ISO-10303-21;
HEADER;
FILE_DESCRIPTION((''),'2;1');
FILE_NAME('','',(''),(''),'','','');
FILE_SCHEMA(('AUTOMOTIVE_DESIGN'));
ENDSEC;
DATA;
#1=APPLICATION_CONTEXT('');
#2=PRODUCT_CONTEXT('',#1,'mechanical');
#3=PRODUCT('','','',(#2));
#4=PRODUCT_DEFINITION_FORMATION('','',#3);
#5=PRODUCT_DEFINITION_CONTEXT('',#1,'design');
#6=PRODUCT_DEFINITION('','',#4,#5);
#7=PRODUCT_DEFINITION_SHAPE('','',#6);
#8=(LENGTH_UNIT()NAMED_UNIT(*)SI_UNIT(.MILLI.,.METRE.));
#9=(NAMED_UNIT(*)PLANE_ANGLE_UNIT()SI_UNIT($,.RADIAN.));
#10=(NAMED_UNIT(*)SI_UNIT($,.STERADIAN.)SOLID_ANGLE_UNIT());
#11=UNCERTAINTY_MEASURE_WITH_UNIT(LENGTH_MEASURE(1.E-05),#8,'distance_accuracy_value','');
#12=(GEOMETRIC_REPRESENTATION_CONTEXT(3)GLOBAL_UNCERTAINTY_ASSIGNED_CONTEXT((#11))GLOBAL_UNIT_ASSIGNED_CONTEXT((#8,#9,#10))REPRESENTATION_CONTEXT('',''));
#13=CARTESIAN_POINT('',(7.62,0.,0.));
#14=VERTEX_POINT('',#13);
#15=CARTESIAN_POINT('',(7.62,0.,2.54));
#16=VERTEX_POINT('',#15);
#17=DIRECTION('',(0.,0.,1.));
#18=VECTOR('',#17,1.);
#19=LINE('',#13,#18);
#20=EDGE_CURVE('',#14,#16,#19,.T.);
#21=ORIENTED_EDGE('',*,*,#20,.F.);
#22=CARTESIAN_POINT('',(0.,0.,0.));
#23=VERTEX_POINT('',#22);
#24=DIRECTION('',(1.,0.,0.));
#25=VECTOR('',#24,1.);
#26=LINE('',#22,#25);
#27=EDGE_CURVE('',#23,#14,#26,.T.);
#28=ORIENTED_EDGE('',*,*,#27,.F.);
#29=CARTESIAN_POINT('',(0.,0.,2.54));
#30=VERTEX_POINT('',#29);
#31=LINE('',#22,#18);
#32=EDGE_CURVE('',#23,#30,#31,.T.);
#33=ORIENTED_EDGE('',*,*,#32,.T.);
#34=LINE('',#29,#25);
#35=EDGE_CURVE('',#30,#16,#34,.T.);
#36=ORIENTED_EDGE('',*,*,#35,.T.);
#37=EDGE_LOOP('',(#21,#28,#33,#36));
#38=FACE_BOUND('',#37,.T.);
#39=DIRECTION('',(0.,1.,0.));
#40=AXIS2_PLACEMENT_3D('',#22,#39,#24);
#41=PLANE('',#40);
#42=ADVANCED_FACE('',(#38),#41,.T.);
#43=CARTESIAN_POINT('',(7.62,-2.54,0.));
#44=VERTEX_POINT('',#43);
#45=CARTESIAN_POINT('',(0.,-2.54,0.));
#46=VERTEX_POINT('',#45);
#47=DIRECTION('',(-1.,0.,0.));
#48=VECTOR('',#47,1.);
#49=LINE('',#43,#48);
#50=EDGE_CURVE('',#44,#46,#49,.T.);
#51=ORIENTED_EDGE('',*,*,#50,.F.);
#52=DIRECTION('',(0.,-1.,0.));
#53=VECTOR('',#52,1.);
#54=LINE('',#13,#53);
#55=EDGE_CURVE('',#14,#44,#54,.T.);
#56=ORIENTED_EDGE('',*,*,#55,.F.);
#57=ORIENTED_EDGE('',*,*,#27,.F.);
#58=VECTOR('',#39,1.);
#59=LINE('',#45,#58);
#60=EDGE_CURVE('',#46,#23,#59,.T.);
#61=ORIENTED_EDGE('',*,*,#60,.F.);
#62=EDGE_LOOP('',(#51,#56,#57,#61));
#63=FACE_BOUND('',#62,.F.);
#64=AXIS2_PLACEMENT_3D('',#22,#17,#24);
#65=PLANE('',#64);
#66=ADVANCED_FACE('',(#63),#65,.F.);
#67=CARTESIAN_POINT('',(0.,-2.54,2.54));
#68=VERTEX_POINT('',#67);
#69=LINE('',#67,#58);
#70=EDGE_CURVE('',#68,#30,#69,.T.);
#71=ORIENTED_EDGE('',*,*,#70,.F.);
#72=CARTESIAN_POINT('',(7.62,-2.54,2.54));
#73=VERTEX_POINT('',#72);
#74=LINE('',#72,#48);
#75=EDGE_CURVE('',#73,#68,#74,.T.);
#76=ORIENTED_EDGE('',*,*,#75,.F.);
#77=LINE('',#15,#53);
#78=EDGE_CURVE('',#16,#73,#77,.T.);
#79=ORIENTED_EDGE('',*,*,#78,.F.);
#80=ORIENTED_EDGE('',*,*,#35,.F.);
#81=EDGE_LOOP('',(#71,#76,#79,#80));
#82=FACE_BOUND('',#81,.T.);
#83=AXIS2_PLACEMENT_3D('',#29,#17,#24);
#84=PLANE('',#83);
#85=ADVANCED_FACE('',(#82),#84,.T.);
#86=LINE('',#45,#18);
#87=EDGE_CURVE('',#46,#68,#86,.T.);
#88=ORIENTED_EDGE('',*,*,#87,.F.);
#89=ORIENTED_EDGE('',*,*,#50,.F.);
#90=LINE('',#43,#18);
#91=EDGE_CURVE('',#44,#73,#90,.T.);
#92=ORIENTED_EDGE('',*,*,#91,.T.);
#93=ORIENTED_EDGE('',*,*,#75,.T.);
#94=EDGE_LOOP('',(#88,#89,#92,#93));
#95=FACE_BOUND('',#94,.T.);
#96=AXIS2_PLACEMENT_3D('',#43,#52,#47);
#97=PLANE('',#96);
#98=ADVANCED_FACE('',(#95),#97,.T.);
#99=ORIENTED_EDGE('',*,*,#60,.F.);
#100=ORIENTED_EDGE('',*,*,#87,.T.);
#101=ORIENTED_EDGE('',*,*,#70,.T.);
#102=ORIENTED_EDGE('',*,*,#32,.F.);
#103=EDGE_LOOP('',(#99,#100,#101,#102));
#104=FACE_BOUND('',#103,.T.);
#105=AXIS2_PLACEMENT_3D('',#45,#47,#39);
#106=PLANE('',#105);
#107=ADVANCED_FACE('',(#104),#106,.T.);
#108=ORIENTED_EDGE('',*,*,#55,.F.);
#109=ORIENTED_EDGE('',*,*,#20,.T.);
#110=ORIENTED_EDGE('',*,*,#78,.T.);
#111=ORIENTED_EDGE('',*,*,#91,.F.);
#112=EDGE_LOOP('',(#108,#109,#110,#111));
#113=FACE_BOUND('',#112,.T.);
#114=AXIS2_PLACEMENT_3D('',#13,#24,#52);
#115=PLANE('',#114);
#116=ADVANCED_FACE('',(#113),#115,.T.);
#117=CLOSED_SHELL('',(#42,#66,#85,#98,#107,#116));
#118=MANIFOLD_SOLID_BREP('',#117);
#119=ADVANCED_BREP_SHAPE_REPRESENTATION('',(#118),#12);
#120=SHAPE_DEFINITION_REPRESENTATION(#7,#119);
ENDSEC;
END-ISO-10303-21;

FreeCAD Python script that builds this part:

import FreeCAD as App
import Part
import Sketcher
Q = App.Units.Quantity


def add_polygon(sketch, points):
    """Adds a closed chain of lines whose ends are joined by coincident constraints."""
    first, n = sketch.GeometryCount, len(points)
    for a, b in zip(points, points[1:] + points[:1]):
        sketch.addGeometry(Part.LineSegment(App.Vector(*a, 0), App.Vector(*b, 0)), False)
    for i in range(n):
        sketch.addConstraint(Sketcher.Constraint("Coincident", first + i, 2, first + (i + 1) % n, 1))

doc = App.newDocument("Part")
params = doc.addObject("Spreadsheet::Sheet", "Params")
for row, (alias, value) in enumerate([
    ("sketch1_width", "0.3 in"),
    ("sketch1_height", "0.1 in"),
    ("pad1_length", "0.1 in"),
], start=1):
    params.set(f"A{row}", alias)
    params.set(f"B{row}", "=" + value)
    params.setAlias(f"B{row}", alias)

body = doc.addObject("PartDesign::Body", "Body")

# Sketch on XY plane
sketch1 = body.newObject("Sketcher::SketchObject", "Sketch")
sketch1.AttachmentSupport = (doc.getObject("XY_Plane"), [""])
sketch1.MapMode = "FlatFace"
add_polygon(sketch1, [(7.6, 0), (0, 0), (0, -2.5), (7.6, -2.5)])  # lines 0-3
sketch1.addConstraint(Sketcher.Constraint("Horizontal", 0))
sketch1.addConstraint(Sketcher.Constraint("Vertical", 1))
sketch1.addConstraint(Sketcher.Constraint("Horizontal", 2))
sketch1.addConstraint(Sketcher.Constraint("Vertical", 3))
sketch1.addConstraint(Sketcher.Constraint("Coincident", 0, 2, -1, 1))
sketch1.addConstraint(Sketcher.Constraint("DistanceX", 0, 2, 0, 1, Q("0.3 in")))
sketch1.addConstraint(Sketcher.Constraint("DistanceY", 1, 2, 1, 1, Q("0.1 in")))
sketch1.setExpression("Constraints[9]", "Params.sketch1_width")
sketch1.setExpression("Constraints[10]", "Params.sketch1_height")
pad1 = body.newObject("PartDesign::Pad", "Pad")
pad1.Profile = sketch1
pad1.setExpression("Length", "Params.pad1_length")

doc.recompute()
